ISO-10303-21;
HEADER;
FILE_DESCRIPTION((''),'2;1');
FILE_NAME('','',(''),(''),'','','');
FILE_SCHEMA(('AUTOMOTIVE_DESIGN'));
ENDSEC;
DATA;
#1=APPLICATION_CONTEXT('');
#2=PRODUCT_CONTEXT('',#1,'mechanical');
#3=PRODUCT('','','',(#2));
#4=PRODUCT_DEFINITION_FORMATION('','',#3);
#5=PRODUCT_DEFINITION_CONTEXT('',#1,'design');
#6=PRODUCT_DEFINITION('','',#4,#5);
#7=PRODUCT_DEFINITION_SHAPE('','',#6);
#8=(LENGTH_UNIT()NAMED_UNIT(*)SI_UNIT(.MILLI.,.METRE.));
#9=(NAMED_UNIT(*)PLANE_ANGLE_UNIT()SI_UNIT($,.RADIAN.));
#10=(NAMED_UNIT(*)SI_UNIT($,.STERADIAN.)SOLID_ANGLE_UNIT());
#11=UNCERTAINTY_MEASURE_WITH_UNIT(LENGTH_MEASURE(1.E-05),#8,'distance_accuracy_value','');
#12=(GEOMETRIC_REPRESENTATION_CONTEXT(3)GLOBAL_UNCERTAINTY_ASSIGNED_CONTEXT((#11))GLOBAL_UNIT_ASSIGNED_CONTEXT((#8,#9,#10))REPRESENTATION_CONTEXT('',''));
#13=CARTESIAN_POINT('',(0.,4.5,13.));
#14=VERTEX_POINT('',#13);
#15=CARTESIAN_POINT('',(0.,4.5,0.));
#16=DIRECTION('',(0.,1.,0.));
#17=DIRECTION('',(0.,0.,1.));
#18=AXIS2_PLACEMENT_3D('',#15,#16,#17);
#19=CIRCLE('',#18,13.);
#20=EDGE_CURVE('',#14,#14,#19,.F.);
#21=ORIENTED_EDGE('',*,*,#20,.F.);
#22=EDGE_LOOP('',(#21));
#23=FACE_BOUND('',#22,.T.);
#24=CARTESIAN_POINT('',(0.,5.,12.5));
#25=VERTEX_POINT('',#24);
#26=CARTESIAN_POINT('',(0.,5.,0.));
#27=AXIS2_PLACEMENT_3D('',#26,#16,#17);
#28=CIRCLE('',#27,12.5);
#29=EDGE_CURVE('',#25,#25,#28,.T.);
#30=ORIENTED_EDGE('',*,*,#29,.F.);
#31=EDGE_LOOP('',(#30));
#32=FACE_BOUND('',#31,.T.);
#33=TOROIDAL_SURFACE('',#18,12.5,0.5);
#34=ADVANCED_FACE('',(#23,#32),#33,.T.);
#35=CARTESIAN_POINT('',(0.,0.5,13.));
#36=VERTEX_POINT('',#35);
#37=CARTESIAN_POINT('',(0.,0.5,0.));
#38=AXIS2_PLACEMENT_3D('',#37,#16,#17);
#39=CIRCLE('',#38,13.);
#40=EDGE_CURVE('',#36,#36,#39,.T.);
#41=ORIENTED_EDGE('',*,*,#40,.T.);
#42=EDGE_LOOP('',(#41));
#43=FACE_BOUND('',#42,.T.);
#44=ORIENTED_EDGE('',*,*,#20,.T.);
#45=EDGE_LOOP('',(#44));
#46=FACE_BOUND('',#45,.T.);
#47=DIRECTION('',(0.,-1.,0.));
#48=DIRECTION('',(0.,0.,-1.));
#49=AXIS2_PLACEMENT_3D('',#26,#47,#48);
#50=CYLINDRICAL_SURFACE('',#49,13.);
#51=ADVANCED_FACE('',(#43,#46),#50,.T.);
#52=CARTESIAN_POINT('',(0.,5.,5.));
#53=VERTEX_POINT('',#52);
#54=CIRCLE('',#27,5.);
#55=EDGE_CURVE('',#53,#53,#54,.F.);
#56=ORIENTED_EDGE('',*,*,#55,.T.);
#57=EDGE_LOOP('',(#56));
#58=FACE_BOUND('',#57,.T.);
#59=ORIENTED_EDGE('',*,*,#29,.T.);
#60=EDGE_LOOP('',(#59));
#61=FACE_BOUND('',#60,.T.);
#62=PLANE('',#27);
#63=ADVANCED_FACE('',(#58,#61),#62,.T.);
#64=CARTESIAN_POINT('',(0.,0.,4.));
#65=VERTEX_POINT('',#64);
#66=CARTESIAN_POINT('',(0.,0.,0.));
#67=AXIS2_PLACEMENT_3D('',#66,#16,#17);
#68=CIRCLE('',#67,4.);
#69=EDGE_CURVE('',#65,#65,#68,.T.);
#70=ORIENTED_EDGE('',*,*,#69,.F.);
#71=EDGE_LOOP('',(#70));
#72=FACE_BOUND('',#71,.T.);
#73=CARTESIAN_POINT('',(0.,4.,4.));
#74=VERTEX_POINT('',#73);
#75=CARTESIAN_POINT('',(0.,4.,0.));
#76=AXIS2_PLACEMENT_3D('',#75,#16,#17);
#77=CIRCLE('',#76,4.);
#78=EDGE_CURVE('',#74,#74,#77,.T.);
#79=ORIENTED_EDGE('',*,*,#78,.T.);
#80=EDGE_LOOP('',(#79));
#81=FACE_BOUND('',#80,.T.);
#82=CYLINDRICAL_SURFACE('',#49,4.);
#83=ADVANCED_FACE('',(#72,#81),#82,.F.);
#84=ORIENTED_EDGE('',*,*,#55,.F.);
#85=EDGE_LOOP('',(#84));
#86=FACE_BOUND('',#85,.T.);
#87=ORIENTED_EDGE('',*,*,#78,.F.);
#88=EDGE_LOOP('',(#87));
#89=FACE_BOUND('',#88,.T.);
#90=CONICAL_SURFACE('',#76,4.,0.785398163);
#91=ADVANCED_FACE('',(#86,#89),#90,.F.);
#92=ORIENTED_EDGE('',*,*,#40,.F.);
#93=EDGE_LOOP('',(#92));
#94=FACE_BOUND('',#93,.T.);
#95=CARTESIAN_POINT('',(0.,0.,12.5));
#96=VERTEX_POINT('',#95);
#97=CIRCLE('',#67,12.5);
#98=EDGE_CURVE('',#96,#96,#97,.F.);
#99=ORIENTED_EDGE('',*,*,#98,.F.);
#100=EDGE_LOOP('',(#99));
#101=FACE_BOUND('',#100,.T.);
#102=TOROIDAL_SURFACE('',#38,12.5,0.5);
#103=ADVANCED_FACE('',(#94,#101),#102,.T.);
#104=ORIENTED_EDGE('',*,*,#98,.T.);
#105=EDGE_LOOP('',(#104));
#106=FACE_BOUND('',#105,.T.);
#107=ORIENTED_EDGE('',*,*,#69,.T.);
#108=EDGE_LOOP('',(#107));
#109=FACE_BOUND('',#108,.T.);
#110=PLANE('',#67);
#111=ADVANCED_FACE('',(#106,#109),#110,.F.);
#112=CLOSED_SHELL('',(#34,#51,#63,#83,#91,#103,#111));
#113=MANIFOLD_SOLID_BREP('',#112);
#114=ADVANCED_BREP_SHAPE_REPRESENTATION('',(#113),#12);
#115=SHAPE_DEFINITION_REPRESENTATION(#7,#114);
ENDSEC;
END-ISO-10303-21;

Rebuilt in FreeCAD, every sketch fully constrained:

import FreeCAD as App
import Part
import Sketcher
from FreeCAD import Vector
Q = App.Units.Quantity


def edges_at(feature, points):
    """Names of the edges that pass closest to the given points."""
    edges = feature.Shape.Edges
    near = lambda p: min(range(len(edges)), key=lambda i: edges[i].distToShape(Part.Vertex(*p))[0])
    return sorted({f"Edge{near(p) + 1}" for p in points})

doc = App.newDocument("Part")
body = doc.addObject("PartDesign::Body", "Body")

# Sketch on XZ plane
sketch1 = body.newObject("Sketcher::SketchObject", "Sketch")
sketch1.AttachmentSupport = (doc.getObject("XZ_Plane"), [""])
sketch1.MapMode = "FlatFace"
sketch1.addGeometry([
    Part.Circle(Vector(0, 0, 0), Vector(0, 0, 1), 13),
    Part.Circle(Vector(0, 0, 0), Vector(0, 0, 1), 4),
], False)
sketch1.addConstraint([
    Sketcher.Constraint("Coincident", 0, 3, -1, 1),
    Sketcher.Constraint("Coincident", 1, 3, -1, 1),
    Sketcher.Constraint("Diameter", 0, Q("26 mm")),
    Sketcher.Constraint("Diameter", 1, Q("8 mm")),
])
pad1 = body.newObject("PartDesign::Pad", "Pad")
pad1.Profile = sketch1
pad1.Length = 5
pad1.Reversed = True
doc.recompute()

chamfer = body.newObject("PartDesign::Chamfer", "Chamfer")
chamfer.Base = (pad1, edges_at(pad1, [(-4, 5, 0)]))
chamfer.Size = 1
doc.recompute()

fillet = body.newObject("PartDesign::Fillet", "Fillet")
fillet.Base = (chamfer, edges_at(chamfer, [(-13, 0, 0), (-13, 5, 0)]))
fillet.Radius = 0.5

doc.recompute()
